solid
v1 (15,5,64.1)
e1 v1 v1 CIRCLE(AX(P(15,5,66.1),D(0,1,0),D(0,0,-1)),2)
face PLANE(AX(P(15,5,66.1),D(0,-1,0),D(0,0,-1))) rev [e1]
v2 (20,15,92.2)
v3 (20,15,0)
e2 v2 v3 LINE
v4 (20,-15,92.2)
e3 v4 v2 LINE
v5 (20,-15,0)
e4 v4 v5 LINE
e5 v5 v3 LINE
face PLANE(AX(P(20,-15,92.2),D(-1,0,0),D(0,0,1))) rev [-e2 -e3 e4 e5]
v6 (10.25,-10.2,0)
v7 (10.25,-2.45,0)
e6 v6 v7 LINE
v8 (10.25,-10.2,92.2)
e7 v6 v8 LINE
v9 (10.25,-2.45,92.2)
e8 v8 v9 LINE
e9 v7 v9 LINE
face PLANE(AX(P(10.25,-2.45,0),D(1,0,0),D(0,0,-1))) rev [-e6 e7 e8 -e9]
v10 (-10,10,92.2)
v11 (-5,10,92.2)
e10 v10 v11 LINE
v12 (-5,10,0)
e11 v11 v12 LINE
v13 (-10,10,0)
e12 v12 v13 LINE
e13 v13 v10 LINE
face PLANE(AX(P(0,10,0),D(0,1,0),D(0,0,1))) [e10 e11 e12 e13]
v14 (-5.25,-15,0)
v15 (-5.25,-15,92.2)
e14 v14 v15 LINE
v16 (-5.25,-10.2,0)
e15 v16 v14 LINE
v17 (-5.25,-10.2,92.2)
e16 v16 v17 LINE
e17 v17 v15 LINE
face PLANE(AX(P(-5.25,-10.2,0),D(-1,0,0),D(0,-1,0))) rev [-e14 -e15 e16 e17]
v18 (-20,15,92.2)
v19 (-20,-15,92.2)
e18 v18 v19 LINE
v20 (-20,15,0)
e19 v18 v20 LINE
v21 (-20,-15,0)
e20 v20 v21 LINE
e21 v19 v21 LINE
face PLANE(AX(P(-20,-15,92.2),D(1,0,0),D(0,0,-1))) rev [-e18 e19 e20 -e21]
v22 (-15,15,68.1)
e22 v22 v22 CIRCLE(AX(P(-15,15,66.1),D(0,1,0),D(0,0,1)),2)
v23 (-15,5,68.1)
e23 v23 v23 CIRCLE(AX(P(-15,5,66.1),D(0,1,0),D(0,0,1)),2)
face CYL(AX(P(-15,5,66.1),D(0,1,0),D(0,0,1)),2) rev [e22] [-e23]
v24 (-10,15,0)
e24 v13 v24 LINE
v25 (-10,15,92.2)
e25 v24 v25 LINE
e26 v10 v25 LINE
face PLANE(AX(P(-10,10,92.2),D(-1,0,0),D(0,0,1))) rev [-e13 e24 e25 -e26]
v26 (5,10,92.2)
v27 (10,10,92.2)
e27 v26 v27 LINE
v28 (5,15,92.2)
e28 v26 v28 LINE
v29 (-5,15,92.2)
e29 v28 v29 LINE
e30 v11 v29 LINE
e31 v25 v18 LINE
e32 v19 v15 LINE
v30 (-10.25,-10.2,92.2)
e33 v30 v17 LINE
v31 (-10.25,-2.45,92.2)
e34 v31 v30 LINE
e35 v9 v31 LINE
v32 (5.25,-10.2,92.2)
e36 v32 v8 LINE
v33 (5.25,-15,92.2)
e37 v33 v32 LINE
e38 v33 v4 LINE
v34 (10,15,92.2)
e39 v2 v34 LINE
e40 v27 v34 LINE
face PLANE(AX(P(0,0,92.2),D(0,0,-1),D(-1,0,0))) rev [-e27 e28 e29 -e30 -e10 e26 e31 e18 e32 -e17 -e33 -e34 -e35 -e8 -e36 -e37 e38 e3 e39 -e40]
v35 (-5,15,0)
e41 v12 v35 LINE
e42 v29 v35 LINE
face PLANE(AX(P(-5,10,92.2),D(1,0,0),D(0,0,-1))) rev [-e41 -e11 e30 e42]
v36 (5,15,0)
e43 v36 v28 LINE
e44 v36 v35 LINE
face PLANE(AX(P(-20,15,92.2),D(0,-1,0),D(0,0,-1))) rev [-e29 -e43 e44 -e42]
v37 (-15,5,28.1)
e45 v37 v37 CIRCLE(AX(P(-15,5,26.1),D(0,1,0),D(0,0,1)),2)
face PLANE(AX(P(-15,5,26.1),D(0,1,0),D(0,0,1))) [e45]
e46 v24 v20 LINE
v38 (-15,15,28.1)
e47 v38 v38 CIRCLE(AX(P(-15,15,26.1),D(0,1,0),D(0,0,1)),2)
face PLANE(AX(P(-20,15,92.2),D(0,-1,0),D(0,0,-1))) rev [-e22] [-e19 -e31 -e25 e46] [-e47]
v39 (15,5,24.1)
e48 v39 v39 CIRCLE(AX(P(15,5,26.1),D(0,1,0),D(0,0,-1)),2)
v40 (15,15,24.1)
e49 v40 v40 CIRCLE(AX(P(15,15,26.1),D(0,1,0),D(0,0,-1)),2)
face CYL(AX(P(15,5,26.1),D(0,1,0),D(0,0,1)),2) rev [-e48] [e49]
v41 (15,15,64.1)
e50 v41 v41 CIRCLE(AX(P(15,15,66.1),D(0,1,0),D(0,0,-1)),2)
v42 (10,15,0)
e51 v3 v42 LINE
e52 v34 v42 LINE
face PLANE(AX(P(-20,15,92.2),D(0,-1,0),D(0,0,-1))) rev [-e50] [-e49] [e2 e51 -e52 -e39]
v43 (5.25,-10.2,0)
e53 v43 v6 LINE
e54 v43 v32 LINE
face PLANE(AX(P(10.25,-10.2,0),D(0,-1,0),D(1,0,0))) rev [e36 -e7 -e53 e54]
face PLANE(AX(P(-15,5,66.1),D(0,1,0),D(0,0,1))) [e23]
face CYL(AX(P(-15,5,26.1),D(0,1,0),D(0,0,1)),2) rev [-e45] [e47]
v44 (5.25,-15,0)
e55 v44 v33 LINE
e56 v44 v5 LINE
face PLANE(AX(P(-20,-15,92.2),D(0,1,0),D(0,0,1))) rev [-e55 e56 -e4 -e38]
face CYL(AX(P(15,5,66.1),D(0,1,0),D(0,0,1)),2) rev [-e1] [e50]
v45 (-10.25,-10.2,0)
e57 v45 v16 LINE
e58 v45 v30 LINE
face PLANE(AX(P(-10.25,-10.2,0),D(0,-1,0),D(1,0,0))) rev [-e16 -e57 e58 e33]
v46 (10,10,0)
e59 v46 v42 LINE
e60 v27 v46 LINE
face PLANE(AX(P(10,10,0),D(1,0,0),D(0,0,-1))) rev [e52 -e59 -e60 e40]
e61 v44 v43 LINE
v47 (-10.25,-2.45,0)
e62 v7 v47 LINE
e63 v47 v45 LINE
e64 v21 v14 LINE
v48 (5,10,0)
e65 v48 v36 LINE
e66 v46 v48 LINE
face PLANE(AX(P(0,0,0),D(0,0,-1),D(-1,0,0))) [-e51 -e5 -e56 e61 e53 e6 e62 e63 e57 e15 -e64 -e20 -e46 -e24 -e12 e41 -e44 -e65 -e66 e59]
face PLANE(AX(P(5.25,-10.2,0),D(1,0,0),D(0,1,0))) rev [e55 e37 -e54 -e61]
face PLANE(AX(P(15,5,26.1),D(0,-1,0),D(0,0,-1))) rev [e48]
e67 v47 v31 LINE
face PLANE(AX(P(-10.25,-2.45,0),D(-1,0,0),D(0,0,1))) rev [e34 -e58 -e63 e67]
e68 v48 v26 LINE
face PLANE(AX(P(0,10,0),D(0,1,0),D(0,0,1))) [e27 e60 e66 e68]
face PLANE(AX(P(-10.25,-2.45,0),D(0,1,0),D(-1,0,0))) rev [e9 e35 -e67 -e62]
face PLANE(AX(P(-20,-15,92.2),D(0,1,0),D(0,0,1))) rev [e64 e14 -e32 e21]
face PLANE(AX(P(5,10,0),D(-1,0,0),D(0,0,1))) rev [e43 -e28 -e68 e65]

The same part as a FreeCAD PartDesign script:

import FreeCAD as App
import Part
import Sketcher


def add_polygon(sketch, points):
    """Adds a closed chain of lines whose ends are joined by coincident constraints."""
    first, n = sketch.GeometryCount, len(points)
    for a, b in zip(points, points[1:] + points[:1]):
        sketch.addGeometry(Part.LineSegment(App.Vector(*a, 0), App.Vector(*b, 0)), False)
    for i in range(n):
        sketch.addConstraint(Sketcher.Constraint("Coincident", first + i, 2, first + (i + 1) % n, 1))

doc = App.newDocument("Part")
body = doc.addObject("PartDesign::Body", "Body")

# Sketch on XY plane
sketch1 = body.newObject("Sketcher::SketchObject", "Sketch")
sketch1.AttachmentSupport = (doc.getObject("XY_Plane"), [""])
sketch1.MapMode = "FlatFace"
add_polygon(sketch1, [(-20, 15), (-20, -15), (20, -15), (20, 15)])  # lines 0-3
sketch1.addConstraint([
    Sketcher.Constraint("Vertical", 0),
    Sketcher.Constraint("Horizontal", 1),
    Sketcher.Constraint("Vertical", 2),
    Sketcher.Constraint("Horizontal", 3),
    Sketcher.Constraint("Symmetric", 0, 2, 2, 2, -1, 1),
    Sketcher.Constraint("DistanceX", 1, 1, 1, 2, 40.0),
    Sketcher.Constraint("DistanceY", 0, 2, 0, 1, 30.0),
])
pad1 = body.newObject("PartDesign::Pad", "Pad")
pad1.Profile = sketch1
pad1.Length = 92.2

# Sketch on XY plane
sketch2 = body.newObject("Sketcher::SketchObject", "Sketch001")
sketch2.AttachmentSupport = (doc.getObject("XY_Plane"), [""])
sketch2.MapMode = "FlatFace"
sketch2.AttachmentOffset = App.Placement(App.Vector(0, 0, 92.2), App.Rotation())
add_polygon(sketch2, [(-10.2, -2.5), (-10.2, -10.2), (-5.2, -10.2), (-5.2, -15), (5.2, -15), (5.2, -10.2), (10.2, -10.2), (10.2, -2.5)])  # lines 0-7
sketch2.addConstraint([
    Sketcher.Constraint("Vertical", 0),
    Sketcher.Constraint("Horizontal", 1),
    Sketcher.Constraint("Vertical", 2),
    Sketcher.Constraint("Horizontal", 3),
    Sketcher.Constraint("Vertical", 4),
    Sketcher.Constraint("Horizontal", 5),
    Sketcher.Constraint("Vertical", 6),
    Sketcher.Constraint("Horizontal", 7),
    Sketcher.Constraint("Symmetric", 1, 2, 4, 2, -2),
    Sketcher.Constraint("Equal", 1, 5),
    Sketcher.Constraint("DistanceX", 1, 1, 1, 2, 5.0),
    Sketcher.Constraint("DistanceX", 3, 1, 3, 2, 10.5),
    Sketcher.Constraint("DistanceY", 2, 2, 2, 1, 4.8),
    Sketcher.Constraint("DistanceY", 2, 2, -1, 1, 15.0),
    Sketcher.Constraint("DistanceY", 0, 2, 0, 1, 7.75),
])
pocket1 = body.newObject("PartDesign::Pocket", "Pocket")
pocket1.Profile = sketch2
pocket1.Type = "ThroughAll"

# Sketch on XZ plane
sketch3 = body.newObject("Sketcher::SketchObject", "Sketch002")
sketch3.AttachmentSupport = (doc.getObject("XZ_Plane"), [""])
sketch3.MapMode = "FlatFace"
sketch3.AttachmentOffset = App.Placement(App.Vector(0, 0, -15), App.Rotation())
add_polygon(sketch3, [(-10, 0), (-10, 92), (-5, 92), (-5, 0)])  # lines 0-3
add_polygon(sketch3, [(5, 0), (5, 92), (10, 92), (10, 0)])  # lines 4-7
sketch3.addConstraint([
    Sketcher.Constraint("Vertical", 0),
    Sketcher.Constraint("Horizontal", 1),
    Sketcher.Constraint("Vertical", 2),
    Sketcher.Constraint("Horizontal", 3),
    Sketcher.Constraint("Vertical", 4),
    Sketcher.Constraint("Horizontal", 5),
    Sketcher.Constraint("Vertical", 6),
    Sketcher.Constraint("Horizontal", 7),
    Sketcher.Constraint("Symmetric", 3, 2, 6, 2, -1, 1),
    Sketcher.Constraint("Symmetric", 1, 2, 4, 2, -2),
    Sketcher.Constraint("PointOnObject", 2, 2, -1),
    Sketcher.Constraint("DistanceX", 1, 1, 1, 2, 5.0),
    Sketcher.Constraint("DistanceY", 0, 1, 0, 2, 92.2),
    Sketcher.Constraint("DistanceX", 0, 2, -1, 1, 10.0),
])
pocket2 = body.newObject("PartDesign::Pocket", "Pocket001")
pocket2.Profile = sketch3
pocket2.Length = 5
pocket2.Reversed = True

# Sketch on XZ plane
sketch4 = body.newObject("Sketcher::SketchObject", "Sketch003")
sketch4.AttachmentSupport = (doc.getObject("XZ_Plane"), [""])
sketch4.MapMode = "FlatFace"
sketch4.AttachmentOffset = App.Placement(App.Vector(0, 0, -15), App.Rotation())
sketch4.addGeometry([
    Part.Circle(App.Vector(-15, 26.1, 0), App.Vector(0, 0, 1), 2),
    Part.Circle(App.Vector(-15, 66.1, 0), App.Vector(0, 0, 1), 2),
    Part.Circle(App.Vector(15, 66.1, 0), App.Vector(0, 0, 1), 2),
    Part.Circle(App.Vector(15, 26.1, 0), App.Vector(0, 0, 1), 2),
], False)
sketch4.addConstraint([
    Sketcher.Constraint("Equal", 0, 1),
    Sketcher.Constraint("Equal", 1, 2),
    Sketcher.Constraint("Equal", 2, 3),
    Sketcher.Constraint("Symmetric", 1, 3, 2, 3, -2),
    Sketcher.Constraint("Symmetric", 0, 3, 3, 3, -2),
    Sketcher.Constraint("Vertical", 0, 3, 1, 3),
    Sketcher.Constraint("Diameter", 0, 4.0),
    Sketcher.Constraint("DistanceX", 0, 3, -1, 1, 15.0),
    Sketcher.Constraint("DistanceY", 0, 3, 1, 3, 40.0),
    Sketcher.Constraint("DistanceY", -1, 1, 0, 3, 26.1),
])
pocket3 = body.newObject("PartDesign::Pocket", "Pocket002")
pocket3.Profile = sketch4
pocket3.Length = 10
pocket3.Reversed = True

doc.recompute()
